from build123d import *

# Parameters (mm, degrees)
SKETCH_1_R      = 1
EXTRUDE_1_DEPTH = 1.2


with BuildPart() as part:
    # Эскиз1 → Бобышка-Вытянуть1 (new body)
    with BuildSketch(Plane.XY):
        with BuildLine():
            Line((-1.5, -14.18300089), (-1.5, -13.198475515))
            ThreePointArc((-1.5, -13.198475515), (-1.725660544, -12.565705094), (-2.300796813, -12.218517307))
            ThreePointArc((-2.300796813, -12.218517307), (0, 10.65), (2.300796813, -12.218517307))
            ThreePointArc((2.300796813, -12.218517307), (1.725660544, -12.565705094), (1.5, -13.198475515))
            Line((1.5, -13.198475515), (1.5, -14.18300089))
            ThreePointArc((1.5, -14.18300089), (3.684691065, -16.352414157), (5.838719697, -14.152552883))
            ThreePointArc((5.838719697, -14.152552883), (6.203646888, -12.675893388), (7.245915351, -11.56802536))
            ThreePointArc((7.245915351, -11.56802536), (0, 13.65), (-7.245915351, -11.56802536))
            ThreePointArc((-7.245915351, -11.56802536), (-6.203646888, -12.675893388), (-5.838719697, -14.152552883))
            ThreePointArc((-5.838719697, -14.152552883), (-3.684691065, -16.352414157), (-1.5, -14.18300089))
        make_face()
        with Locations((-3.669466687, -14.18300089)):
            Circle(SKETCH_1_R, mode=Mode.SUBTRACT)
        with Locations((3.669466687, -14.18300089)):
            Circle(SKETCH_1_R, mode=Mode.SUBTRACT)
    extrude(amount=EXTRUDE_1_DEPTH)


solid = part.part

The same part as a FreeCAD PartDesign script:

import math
import FreeCAD as App
import Part
import Sketcher

V = App.Vector
Q = App.Units.Quantity

doc = App.newDocument("Part")
params = doc.addObject("Spreadsheet::Sheet", "Params")
for row, (alias, value) in enumerate([
    ("sketch1_diameter", "2 mm"),
    ("sketch1_radius", "3 mm"),
    ("sketch1_radius2", "11.55 mm"),
    ("sketch1_radius3", "13.65 mm"),
    ("pad1_length", "1.2 mm"),
], start=1):
    params.set(f"A{row}", alias)
    params.set(f"B{row}", "=" + value)
    params.setAlias(f"B{row}", alias)

body = doc.addObject("PartDesign::Body", "Body")

sketch1 = doc.addObject("Sketcher::SketchObject", "Sketch")
body.addObject(sketch1)
sketch1.AttachmentSupport = (doc.XY_Plane, [""])
sketch1.MapMode = "FlatFace"
sketch1.addGeometry([
    Part.LineSegment(V(-1.5, -14.2, 0), V(-1.5, -13.2, 0)),
    Part.ArcOfCircle(Part.Circle(V(-2.5, -13.2, 0), V(0, 0, 1), 1), math.radians(0), math.radians(79)),
    Part.ArcOfCircle(Part.Circle(V(0, -0.9, 0), V(0, 0, 1), 11.6), math.radians(-79), math.radians(259)),
    Part.ArcOfCircle(Part.Circle(V(2.5, -13.2, 0), V(0, 0, 1), 1), math.radians(101), math.radians(180)),
    Part.LineSegment(V(1.5, -13.2, 0), V(1.5, -14.2, 0)),
    Part.ArcOfCircle(Part.Circle(V(3.7, -14.2, 0), V(0, 0, 1), 2.2), math.radians(180), math.radians(361)),
    Part.ArcOfCircle(Part.Circle(V(8.8, -14.1, 0), V(0, 0, 1), 3), math.radians(122), math.radians(181)),
    Part.ArcOfCircle(Part.Circle(V(0, 0, 0), V(0, 0, 1), 13.7), math.radians(-58), math.radians(238)),
    Part.ArcOfCircle(Part.Circle(V(-8.8, -14.1, 0), V(0, 0, 1), 3), math.radians(-1), math.radians(58)),
    Part.ArcOfCircle(Part.Circle(V(-3.7, -14.2, 0), V(0, 0, 1), 2.2), math.radians(179), math.radians(360)),
    Part.Circle(V(-3.7, -14.2, 0), V(0, 0, 1), 1),
    Part.Circle(V(3.7, -14.2, 0), V(0, 0, 1), 1),
], False)
sketch1.addConstraint([
    Sketcher.Constraint("Tangent", 0, 2, 1, 1),
    Sketcher.Constraint("Tangent", 1, 2, 2, 2),
    Sketcher.Constraint("Tangent", 2, 1, 3, 1),
    Sketcher.Constraint("Tangent", 3, 2, 4, 1),
    Sketcher.Constraint("Tangent", 4, 2, 5, 1),
    Sketcher.Constraint("Tangent", 5, 2, 6, 2),
    Sketcher.Constraint("Tangent", 6, 1, 7, 1),
    Sketcher.Constraint("Tangent", 7, 2, 8, 2),
    Sketcher.Constraint("Tangent", 8, 1, 9, 1),
    Sketcher.Constraint("Tangent", 9, 2, 0, 1),
    Sketcher.Constraint("Vertical", 0),
    Sketcher.Constraint("Vertical", 4),
    Sketcher.Constraint("Coincident", 7, 3, -1, 1),
    Sketcher.Constraint("Coincident", 10, 3, 9, 3),
    Sketcher.Constraint("Coincident", 11, 3, 5, 3),
    Sketcher.Constraint("Equal", 1, 3),
    Sketcher.Constraint("Equal", 6, 8),
    Sketcher.Constraint("Equal", 5, 9),
    Sketcher.Constraint("Equal", 3, 10),
    Sketcher.Constraint("Equal", 10, 11),
    Sketcher.Constraint("Symmetric", 1, 3, 3, 3, -2),
    Sketcher.Constraint("Horizontal", 6, 3, 8, 3),
    Sketcher.Constraint("Diameter", 10, Q("2 mm")),
    Sketcher.Constraint("Radius", 6, Q("3 mm")),
    Sketcher.Constraint("Radius", 2, Q("11.55 mm")),
    Sketcher.Constraint("Radius", 7, Q("13.65 mm")),
    Sketcher.Constraint("DistanceX", 1, 3, 3, 3, Q("5 mm")),
    Sketcher.Constraint("DistanceY", 2, 3, -1, 1, Q("0.9 mm")),
    Sketcher.Constraint("DistanceY", 5, 3, -1, 1, Q("14.183001 mm")),
    Sketcher.Constraint("Radius", 5, Q("2.169467 mm")),
])
sketch1.setExpression("Constraints[22]", "Params.sketch1_diameter")
sketch1.setExpression("Constraints[23]", "Params.sketch1_radius")
sketch1.setExpression("Constraints[24]", "Params.sketch1_radius2")
sketch1.setExpression("Constraints[25]", "Params.sketch1_radius3")
pad1 = doc.addObject("PartDesign::Pad", "Pad")
body.addObject(pad1)
pad1.Profile = sketch1
pad1.setExpression("Length", "Params.pad1_length")

doc.recompute()
